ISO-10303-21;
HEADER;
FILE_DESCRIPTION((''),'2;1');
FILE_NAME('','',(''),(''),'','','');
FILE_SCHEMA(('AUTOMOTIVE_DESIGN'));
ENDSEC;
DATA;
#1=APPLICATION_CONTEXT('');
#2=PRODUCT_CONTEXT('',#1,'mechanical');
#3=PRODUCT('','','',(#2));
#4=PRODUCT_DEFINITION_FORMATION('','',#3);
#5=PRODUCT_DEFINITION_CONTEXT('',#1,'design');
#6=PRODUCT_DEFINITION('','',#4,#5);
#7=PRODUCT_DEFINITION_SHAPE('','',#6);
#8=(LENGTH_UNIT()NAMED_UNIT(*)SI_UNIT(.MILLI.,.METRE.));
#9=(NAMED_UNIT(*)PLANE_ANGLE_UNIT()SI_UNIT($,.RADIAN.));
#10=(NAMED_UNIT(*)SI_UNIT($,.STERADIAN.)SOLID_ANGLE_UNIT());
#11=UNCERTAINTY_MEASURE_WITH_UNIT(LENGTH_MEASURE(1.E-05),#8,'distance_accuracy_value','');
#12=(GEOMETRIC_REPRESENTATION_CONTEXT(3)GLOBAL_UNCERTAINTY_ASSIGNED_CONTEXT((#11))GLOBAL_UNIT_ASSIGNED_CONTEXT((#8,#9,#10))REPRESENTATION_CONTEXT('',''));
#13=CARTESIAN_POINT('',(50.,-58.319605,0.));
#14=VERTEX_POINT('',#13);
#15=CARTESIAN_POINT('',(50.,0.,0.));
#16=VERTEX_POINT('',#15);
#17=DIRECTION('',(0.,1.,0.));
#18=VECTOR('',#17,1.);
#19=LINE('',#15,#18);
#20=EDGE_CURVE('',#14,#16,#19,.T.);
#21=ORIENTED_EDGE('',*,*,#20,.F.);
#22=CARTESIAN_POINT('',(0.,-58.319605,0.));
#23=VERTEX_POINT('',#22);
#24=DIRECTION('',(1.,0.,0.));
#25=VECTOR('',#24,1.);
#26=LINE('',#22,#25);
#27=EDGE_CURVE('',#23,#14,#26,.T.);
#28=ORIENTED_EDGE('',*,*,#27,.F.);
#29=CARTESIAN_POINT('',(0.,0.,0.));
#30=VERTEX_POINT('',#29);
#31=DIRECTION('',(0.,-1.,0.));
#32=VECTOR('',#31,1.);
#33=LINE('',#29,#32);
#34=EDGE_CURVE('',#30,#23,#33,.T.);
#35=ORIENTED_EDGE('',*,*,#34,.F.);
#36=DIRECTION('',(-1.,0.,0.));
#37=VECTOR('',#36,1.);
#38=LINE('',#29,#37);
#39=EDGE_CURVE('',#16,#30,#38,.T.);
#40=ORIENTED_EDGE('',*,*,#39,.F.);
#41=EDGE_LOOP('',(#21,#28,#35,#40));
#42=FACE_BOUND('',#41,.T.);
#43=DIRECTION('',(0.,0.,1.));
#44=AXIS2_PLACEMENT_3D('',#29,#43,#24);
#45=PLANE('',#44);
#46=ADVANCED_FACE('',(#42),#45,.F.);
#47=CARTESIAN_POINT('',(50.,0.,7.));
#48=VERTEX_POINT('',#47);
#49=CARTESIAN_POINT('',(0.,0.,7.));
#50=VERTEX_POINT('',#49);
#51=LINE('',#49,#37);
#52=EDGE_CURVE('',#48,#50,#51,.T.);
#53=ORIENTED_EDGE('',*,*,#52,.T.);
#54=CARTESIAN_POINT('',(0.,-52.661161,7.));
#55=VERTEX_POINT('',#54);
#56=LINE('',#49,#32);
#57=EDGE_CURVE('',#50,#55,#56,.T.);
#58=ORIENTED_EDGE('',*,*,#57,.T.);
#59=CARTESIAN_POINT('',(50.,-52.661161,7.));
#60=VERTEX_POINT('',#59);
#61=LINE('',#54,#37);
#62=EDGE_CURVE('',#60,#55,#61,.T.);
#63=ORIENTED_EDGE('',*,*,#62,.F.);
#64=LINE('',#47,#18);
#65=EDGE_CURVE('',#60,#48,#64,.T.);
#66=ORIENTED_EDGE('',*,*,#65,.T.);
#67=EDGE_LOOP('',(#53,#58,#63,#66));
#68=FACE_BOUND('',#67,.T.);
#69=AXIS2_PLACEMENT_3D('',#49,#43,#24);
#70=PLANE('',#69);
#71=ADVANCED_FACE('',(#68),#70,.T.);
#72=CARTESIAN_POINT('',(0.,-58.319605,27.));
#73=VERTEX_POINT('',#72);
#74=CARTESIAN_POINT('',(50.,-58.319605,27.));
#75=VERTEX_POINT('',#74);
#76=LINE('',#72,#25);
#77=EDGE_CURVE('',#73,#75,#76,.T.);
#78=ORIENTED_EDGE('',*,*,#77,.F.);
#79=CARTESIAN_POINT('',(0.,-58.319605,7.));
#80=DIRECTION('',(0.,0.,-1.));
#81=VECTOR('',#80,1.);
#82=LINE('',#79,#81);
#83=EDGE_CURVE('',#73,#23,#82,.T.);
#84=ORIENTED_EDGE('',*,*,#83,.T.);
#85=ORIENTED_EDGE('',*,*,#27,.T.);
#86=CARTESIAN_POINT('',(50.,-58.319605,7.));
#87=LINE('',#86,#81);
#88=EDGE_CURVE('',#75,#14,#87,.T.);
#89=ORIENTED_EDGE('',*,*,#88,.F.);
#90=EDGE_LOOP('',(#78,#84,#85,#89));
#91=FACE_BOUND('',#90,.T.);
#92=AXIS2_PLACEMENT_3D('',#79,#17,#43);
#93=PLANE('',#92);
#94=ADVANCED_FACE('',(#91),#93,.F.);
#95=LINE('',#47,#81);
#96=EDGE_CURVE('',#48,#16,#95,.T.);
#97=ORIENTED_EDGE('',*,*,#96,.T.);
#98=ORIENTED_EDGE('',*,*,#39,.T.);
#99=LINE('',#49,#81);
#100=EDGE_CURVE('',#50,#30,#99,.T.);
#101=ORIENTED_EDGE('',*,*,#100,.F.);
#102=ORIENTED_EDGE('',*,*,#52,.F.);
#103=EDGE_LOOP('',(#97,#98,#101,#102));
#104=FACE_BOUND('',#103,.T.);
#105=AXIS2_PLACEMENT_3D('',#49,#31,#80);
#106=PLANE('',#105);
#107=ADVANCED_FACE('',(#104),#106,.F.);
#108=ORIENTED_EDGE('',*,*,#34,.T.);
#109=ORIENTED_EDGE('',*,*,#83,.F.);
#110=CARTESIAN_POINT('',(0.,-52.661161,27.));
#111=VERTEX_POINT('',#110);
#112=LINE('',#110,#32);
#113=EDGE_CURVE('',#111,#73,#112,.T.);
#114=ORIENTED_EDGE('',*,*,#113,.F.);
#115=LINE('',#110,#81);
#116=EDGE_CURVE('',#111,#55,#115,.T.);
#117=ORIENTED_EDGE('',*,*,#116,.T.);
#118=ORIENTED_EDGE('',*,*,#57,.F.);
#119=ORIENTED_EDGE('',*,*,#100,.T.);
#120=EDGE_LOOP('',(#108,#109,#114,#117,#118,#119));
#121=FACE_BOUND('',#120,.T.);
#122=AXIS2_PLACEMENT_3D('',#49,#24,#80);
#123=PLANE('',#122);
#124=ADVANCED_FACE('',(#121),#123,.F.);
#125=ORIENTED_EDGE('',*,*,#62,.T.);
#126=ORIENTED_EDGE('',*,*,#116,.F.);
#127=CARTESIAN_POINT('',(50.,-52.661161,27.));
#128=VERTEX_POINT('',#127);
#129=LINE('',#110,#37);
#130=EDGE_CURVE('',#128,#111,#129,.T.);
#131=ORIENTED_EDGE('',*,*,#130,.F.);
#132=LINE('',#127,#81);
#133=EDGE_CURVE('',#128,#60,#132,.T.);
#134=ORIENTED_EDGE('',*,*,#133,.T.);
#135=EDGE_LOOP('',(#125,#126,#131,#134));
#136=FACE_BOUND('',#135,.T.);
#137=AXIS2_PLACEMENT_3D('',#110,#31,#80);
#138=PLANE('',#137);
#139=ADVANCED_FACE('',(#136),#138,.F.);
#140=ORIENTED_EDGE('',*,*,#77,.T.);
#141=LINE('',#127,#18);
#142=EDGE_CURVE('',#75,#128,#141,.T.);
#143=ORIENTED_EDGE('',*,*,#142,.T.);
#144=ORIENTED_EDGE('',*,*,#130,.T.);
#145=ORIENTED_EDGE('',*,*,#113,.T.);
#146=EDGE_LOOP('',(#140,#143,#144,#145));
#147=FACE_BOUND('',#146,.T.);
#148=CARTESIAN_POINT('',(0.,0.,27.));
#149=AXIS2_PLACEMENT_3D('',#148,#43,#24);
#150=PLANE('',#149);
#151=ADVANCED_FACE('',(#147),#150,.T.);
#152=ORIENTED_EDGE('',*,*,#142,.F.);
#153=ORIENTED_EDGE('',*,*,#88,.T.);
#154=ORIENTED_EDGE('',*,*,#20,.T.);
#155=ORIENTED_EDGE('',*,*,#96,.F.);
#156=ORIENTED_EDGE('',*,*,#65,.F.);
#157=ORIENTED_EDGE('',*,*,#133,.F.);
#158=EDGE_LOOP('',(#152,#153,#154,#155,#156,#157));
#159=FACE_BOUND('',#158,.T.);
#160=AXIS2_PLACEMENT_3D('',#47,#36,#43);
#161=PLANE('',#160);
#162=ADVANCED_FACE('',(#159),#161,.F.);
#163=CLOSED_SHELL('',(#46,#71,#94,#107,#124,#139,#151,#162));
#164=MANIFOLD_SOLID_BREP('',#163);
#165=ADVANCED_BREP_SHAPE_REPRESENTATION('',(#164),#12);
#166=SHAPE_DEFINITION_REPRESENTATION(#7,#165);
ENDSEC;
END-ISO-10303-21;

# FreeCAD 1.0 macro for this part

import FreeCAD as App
import Part
import Sketcher
from FreeCAD import Vector


def add_polygon(sketch, points):
    """Adds a closed chain of lines whose ends are joined by coincident constraints."""
    first, n = sketch.GeometryCount, len(points)
    for a, b in zip(points, points[1:] + points[:1]):
        sketch.addGeometry(Part.LineSegment(App.Vector(*a, 0), App.Vector(*b, 0)), False)
    for i in range(n):
        sketch.addConstraint(Sketcher.Constraint("Coincident", first + i, 2, first + (i + 1) % n, 1))

doc = App.newDocument("Part")
params = doc.addObject("Spreadsheet::Sheet", "Params")
for row, (alias, value) in enumerate([
    ("sketch1_width", "50 mm"),
    ("pad1_length", "7 mm"),
    ("sketch2_width", "50 mm"),
    ("pad2_length", "20 mm"),
], start=1):
    params.set(f"A{row}", alias)
    params.set(f"B{row}", "=" + value)
    params.setAlias(f"B{row}", alias)

body = doc.addObject("PartDesign::Body", "Body")

sketch1 = doc.addObject("Sketcher::SketchObject", "Sketch")
body.addObject(sketch1)
sketch1.AttachmentSupport = (doc.XY_Plane, [""])
sketch1.MapMode = "FlatFace"
add_polygon(sketch1, [(0, 0), (0, -58), (50, -58), (50, 0)])
sketch1.addConstraint([
    Sketcher.Constraint("Vertical", 0),
    Sketcher.Constraint("Horizontal", 1),
    Sketcher.Constraint("Vertical", 2),
    Sketcher.Constraint("Horizontal", 3),
    Sketcher.Constraint("Coincident", 3, 2, -1, 1),
    Sketcher.Constraint("DistanceX", 1, 1, 1, 2, 50.0),
    Sketcher.Constraint("DistanceY", 0, 2, 0, 1, 58.319605),
])
sketch1.setExpression("Constraints[9]", "Params.sketch1_width")
pad1 = doc.addObject("PartDesign::Pad", "Pad")
body.addObject(pad1)
pad1.Profile = sketch1
pad1.setExpression("Length", "Params.pad1_length")

sketch2 = doc.addObject("Sketcher::SketchObject", "Sketch001")
body.addObject(sketch2)
sketch2.AttachmentSupport = (doc.XY_Plane, [""])
sketch2.MapMode = "FlatFace"
sketch2.AttachmentOffset = App.Placement(Vector(0, 0, 7), App.Rotation())
add_polygon(sketch2, [(0, -53), (0, -58), (50, -58), (50, -53)])
sketch2.addConstraint([
    Sketcher.Constraint("Vertical", 0),
    Sketcher.Constraint("Horizontal", 1),
    Sketcher.Constraint("Vertical", 2),
    Sketcher.Constraint("Horizontal", 3),
    Sketcher.Constraint("PointOnObject", 0, 2, -2),
    Sketcher.Constraint("DistanceX", 1, 1, 1, 2, 50.0),
    Sketcher.Constraint("DistanceY", 0, 2, 0, 1, 5.658443),
    Sketcher.Constraint("DistanceY", 2, 2, -1, 1, 52.661161),
])
sketch2.setExpression("Constraints[9]", "Params.sketch2_width")
pad2 = doc.addObject("PartDesign::Pad", "Pad001")
body.addObject(pad2)
pad2.Profile = sketch2
pad2.setExpression("Length", "Params.pad2_length")

doc.recompute()
